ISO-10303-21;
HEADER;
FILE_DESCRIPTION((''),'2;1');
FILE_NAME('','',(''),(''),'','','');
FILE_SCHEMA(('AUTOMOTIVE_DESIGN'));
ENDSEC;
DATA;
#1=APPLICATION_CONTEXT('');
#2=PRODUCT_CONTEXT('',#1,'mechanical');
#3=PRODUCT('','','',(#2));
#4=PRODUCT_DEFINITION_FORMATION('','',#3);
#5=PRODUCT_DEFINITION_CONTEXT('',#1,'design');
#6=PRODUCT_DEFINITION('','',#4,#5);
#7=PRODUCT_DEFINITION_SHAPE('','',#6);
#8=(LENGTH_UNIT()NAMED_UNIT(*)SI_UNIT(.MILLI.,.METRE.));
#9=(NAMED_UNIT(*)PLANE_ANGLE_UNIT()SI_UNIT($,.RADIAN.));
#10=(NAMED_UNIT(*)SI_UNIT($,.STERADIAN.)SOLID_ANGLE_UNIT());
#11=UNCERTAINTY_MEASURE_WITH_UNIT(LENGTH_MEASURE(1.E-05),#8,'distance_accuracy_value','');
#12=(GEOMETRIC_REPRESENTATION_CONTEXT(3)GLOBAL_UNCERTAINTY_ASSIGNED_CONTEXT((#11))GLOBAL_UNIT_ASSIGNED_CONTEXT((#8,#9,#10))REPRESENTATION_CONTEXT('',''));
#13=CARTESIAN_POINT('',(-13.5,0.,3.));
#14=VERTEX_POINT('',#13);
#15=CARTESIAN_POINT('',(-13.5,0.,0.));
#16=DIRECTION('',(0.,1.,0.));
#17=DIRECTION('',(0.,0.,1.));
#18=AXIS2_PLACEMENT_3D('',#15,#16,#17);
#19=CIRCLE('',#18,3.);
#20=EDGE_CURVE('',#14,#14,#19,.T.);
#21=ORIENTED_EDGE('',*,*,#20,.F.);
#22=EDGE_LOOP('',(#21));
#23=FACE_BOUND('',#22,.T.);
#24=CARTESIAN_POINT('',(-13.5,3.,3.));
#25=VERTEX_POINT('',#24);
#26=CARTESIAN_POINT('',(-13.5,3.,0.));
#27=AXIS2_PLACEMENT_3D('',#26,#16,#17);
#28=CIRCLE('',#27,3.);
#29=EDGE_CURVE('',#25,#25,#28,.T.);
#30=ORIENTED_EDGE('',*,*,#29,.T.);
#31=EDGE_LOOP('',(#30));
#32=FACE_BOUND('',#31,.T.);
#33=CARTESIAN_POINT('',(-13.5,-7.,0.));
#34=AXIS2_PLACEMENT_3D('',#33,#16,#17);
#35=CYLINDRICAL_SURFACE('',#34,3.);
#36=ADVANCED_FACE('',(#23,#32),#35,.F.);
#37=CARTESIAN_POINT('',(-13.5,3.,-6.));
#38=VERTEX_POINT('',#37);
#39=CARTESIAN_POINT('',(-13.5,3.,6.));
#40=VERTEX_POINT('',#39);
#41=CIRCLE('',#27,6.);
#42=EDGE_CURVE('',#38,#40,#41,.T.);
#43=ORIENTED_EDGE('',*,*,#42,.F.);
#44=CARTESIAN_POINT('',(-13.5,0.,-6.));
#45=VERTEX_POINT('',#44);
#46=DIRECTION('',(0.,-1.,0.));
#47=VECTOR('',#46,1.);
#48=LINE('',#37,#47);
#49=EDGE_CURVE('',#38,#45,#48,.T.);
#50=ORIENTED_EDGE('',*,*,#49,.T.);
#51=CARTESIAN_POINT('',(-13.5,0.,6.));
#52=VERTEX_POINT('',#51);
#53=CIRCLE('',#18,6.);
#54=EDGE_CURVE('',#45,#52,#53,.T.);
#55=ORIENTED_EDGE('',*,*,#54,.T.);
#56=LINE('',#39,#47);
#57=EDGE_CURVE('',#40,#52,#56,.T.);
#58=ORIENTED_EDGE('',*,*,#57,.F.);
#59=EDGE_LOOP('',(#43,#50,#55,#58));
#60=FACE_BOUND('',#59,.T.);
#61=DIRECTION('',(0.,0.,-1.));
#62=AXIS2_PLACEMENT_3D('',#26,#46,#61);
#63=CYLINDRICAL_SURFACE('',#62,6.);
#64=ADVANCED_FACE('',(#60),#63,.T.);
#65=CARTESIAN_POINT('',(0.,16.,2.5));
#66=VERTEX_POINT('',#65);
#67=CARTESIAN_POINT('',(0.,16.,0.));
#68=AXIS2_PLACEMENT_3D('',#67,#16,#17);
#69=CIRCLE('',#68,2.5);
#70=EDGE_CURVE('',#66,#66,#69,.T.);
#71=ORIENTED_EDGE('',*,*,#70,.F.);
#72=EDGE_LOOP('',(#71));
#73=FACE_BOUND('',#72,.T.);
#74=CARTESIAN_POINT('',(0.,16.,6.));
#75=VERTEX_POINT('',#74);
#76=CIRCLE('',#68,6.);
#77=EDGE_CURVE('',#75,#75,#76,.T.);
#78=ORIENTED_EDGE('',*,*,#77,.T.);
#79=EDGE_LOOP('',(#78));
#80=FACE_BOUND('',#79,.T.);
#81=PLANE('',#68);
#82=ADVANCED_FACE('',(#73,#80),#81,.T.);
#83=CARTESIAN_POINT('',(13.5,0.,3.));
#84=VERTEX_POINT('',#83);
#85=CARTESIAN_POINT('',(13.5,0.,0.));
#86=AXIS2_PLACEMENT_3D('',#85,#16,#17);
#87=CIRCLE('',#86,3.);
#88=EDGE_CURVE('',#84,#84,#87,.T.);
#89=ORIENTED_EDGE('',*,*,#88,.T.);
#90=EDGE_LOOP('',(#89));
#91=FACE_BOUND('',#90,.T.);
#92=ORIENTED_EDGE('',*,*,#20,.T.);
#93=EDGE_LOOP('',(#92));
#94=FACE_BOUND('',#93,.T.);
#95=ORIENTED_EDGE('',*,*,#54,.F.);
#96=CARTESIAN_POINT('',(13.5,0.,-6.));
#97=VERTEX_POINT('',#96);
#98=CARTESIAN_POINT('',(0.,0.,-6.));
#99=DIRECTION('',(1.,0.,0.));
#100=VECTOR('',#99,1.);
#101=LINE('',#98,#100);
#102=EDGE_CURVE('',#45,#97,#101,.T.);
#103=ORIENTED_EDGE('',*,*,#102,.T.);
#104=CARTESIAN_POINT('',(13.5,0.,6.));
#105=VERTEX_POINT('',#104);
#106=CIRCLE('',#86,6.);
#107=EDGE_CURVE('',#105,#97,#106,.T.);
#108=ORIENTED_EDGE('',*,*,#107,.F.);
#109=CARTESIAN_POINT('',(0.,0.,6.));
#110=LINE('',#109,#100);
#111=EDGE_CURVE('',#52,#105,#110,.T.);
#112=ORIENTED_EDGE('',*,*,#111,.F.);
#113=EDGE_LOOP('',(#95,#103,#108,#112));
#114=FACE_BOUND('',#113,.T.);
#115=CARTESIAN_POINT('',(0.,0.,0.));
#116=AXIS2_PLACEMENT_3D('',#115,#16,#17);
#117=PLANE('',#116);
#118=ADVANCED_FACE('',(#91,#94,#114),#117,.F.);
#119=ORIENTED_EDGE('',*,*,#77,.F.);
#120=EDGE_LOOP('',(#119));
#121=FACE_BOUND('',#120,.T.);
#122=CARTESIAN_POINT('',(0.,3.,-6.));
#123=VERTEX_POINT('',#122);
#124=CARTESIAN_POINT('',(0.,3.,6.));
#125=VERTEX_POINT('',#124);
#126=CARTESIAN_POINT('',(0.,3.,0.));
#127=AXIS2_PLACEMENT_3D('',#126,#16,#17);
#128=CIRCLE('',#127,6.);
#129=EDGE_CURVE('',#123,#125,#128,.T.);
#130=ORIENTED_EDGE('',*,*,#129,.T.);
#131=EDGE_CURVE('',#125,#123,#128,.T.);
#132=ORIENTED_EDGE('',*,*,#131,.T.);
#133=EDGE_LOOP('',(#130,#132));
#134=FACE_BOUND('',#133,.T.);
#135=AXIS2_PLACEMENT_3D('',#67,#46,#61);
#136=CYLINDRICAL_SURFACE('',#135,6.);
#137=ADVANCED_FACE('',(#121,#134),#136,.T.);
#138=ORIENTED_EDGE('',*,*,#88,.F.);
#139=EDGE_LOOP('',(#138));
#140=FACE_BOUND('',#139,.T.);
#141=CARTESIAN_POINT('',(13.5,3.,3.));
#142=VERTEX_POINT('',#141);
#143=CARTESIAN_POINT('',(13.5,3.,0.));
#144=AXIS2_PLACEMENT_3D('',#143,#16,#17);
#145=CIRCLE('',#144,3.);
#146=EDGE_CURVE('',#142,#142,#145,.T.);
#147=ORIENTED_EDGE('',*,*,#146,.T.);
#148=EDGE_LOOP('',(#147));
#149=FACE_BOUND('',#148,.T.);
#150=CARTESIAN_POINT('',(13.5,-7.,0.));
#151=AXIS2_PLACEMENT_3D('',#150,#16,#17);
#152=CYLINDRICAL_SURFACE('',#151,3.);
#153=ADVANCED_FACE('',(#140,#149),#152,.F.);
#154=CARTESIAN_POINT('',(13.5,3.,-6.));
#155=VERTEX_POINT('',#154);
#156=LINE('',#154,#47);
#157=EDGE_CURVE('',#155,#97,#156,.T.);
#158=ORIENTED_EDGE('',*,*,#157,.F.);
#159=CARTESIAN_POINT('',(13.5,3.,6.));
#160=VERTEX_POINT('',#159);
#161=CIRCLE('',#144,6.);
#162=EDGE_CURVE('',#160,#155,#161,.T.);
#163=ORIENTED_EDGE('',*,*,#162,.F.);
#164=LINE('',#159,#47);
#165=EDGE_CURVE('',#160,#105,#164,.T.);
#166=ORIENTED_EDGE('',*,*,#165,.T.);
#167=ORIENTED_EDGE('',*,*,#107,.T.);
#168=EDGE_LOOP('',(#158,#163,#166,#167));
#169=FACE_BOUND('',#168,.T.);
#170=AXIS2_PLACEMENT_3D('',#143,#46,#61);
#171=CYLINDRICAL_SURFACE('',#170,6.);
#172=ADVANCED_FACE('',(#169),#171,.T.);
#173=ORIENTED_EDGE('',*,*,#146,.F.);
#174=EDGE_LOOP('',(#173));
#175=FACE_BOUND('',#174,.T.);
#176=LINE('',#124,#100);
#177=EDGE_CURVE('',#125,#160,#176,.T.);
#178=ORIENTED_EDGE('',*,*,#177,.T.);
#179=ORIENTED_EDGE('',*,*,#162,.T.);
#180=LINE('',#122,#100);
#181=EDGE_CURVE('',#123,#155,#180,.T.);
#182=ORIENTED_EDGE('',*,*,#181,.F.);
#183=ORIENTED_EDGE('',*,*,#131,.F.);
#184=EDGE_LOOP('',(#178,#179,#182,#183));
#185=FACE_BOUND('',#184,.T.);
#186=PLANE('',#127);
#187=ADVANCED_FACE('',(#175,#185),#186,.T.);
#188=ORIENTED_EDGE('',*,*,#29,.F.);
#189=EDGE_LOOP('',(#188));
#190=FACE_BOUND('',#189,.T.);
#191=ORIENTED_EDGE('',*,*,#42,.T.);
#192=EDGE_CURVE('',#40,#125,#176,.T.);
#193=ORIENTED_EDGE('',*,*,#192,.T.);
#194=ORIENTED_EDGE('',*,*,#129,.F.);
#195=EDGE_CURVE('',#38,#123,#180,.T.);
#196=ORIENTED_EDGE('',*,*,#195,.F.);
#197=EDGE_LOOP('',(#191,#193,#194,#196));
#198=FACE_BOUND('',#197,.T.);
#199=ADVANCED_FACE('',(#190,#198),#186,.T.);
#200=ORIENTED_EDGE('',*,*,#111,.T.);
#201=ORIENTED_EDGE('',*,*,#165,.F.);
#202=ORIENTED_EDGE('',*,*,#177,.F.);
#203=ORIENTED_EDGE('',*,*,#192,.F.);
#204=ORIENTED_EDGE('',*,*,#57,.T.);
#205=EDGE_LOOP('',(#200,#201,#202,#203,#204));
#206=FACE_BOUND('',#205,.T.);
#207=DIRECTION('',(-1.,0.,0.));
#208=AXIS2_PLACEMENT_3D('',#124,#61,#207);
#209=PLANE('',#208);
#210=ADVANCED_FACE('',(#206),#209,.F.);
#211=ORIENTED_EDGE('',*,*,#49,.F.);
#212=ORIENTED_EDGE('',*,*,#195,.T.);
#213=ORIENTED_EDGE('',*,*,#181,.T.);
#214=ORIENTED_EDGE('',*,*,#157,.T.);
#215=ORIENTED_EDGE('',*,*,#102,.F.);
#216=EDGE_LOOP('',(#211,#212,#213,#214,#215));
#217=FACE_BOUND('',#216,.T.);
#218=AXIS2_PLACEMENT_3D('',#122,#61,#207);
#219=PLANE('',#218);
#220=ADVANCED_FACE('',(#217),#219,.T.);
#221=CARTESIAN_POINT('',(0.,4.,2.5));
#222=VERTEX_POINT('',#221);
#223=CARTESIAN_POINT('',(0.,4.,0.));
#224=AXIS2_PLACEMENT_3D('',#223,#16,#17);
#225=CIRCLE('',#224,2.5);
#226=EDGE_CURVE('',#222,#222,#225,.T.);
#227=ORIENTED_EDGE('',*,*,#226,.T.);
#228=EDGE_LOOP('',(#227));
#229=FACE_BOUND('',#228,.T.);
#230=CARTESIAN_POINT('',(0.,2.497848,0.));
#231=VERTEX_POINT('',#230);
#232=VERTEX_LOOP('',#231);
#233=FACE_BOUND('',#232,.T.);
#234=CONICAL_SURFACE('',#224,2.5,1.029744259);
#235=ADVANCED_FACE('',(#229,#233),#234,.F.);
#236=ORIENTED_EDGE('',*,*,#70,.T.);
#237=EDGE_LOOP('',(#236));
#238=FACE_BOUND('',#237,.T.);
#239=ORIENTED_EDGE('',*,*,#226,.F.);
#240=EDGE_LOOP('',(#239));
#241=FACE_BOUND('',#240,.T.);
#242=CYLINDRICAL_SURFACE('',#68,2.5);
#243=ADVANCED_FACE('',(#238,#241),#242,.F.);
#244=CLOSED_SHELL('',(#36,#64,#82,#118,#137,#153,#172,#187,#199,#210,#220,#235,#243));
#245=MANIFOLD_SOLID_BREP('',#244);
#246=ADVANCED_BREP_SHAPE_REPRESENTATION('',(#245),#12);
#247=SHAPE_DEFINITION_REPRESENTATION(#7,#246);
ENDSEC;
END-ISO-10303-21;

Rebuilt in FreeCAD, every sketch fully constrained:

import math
import FreeCAD as App
import Part
import Sketcher

V = App.Vector

doc = App.newDocument("Part")
body = doc.addObject("PartDesign::Body", "Body")

sketch1 = doc.addObject("Sketcher::SketchObject", "Sketch")
body.addObject(sketch1)
sketch1.AttachmentSupport = (doc.XZ_Plane, [""])
sketch1.MapMode = "FlatFace"
sketch1.addGeometry([
    Part.LineSegment(V(-14, 6, 0), V(14, 6, 0)),
    Part.ArcOfCircle(Part.Circle(V(14, 0, 0), V(0, 0, 1), 6), math.radians(-90), math.radians(90)),
    Part.LineSegment(V(14, -6, 0), V(-14, -6, 0)),
    Part.ArcOfCircle(Part.Circle(V(-14, 0, 0), V(0, 0, 1), 6), math.radians(90), math.radians(270)),
], False)
sketch1.addConstraint([
    Sketcher.Constraint("Tangent", 0, 2, 1, 2),
    Sketcher.Constraint("Tangent", 1, 1, 2, 1),
    Sketcher.Constraint("Tangent", 2, 2, 3, 2),
    Sketcher.Constraint("Tangent", 3, 1, 0, 1),
    Sketcher.Constraint("Horizontal", 0),
    Sketcher.Constraint("Horizontal", 2),
    Sketcher.Constraint("Symmetric", 1, 3, 3, 3, -1, 1),
    Sketcher.Constraint("Radius", 1, 6.0),
    Sketcher.Constraint("DistanceX", 0, 1, 0, 2, 27.0),
])
pad1 = doc.addObject("PartDesign::Pad", "Pad")
body.addObject(pad1)
pad1.Profile = sketch1
pad1.Length = 3
pad1.Reversed = True

sketch2 = doc.addObject("Sketcher::SketchObject", "Sketch001")
body.addObject(sketch2)
sketch2.AttachmentSupport = (doc.XZ_Plane, [""])
sketch2.MapMode = "FlatFace"
sketch2.AttachmentOffset = App.Placement(V(0, 0, -3), App.Rotation())
sketch2.addGeometry(Part.Circle(V(0, 0, 0), V(0, 0, 1), 6), False)
sketch2.addConstraint([
    Sketcher.Constraint("Coincident", 0, 3, -1, 1),
    Sketcher.Constraint("Diameter", 0, 12.0),
])
pad2 = doc.addObject("PartDesign::Pad", "Pad001")
body.addObject(pad2)
pad2.Profile = sketch2
pad2.Length = 13
pad2.Reversed = True

sketch3 = doc.addObject("Sketcher::SketchObject", "Sketch002")
body.addObject(sketch3)
sketch3.AttachmentSupport = (doc.XZ_Plane, [""])
sketch3.MapMode = "FlatFace"
sketch3.AttachmentOffset = App.Placement(V(0, 0, -16), App.Rotation())
sketch3.addGeometry(Part.Circle(V(0, 0, 0), V(0, 0, 1), 2.5), False)
sketch3.addConstraint([
    Sketcher.Constraint("Coincident", 0, 3, -1, 1),
    Sketcher.Constraint("Diameter", 0, 5.0),
])
doc.recompute()
hole = doc.addObject("PartDesign::Hole", "Hole")
body.addObject(hole)
hole.Profile = sketch3
hole.ThreadType = "None"
hole.Diameter = 5
hole.DepthType = "Dimension"
hole.Depth = 12
hole.DrillPoint = "Angled"
hole.DrillPointAngle = 118
hole.Reversed = True

sketch4 = doc.addObject("Sketcher::SketchObject", "Sketch003")
body.addObject(sketch4)
sketch4.AttachmentSupport = (doc.XZ_Plane, [""])
sketch4.MapMode = "FlatFace"
sketch4.AttachmentOffset = App.Placement(V(0, 0, -3), App.Rotation())
sketch4.addGeometry([
    Part.Circle(V(-13.5, 0, 0), V(0, 0, 1), 3),
    Part.Circle(V(13.5, 0, 0), V(0, 0, 1), 3),
], False)
sketch4.addConstraint([
    Sketcher.Constraint("Equal", 0, 1),
    Sketcher.Constraint("Symmetric", 0, 3, 1, 3, -1, 1),
    Sketcher.Constraint("PointOnObject", 0, 3, -1),
    Sketcher.Constraint("Diameter", 0, 6.0),
    Sketcher.Constraint("DistanceX", 0, 3, 1, 3, 27.0),
])
pocket1 = doc.addObject("PartDesign::Pocket", "Pocket")
body.addObject(pocket1)
pocket1.Profile = sketch4
pocket1.Length = 10
pocket1.Reversed = True

doc.recompute()
